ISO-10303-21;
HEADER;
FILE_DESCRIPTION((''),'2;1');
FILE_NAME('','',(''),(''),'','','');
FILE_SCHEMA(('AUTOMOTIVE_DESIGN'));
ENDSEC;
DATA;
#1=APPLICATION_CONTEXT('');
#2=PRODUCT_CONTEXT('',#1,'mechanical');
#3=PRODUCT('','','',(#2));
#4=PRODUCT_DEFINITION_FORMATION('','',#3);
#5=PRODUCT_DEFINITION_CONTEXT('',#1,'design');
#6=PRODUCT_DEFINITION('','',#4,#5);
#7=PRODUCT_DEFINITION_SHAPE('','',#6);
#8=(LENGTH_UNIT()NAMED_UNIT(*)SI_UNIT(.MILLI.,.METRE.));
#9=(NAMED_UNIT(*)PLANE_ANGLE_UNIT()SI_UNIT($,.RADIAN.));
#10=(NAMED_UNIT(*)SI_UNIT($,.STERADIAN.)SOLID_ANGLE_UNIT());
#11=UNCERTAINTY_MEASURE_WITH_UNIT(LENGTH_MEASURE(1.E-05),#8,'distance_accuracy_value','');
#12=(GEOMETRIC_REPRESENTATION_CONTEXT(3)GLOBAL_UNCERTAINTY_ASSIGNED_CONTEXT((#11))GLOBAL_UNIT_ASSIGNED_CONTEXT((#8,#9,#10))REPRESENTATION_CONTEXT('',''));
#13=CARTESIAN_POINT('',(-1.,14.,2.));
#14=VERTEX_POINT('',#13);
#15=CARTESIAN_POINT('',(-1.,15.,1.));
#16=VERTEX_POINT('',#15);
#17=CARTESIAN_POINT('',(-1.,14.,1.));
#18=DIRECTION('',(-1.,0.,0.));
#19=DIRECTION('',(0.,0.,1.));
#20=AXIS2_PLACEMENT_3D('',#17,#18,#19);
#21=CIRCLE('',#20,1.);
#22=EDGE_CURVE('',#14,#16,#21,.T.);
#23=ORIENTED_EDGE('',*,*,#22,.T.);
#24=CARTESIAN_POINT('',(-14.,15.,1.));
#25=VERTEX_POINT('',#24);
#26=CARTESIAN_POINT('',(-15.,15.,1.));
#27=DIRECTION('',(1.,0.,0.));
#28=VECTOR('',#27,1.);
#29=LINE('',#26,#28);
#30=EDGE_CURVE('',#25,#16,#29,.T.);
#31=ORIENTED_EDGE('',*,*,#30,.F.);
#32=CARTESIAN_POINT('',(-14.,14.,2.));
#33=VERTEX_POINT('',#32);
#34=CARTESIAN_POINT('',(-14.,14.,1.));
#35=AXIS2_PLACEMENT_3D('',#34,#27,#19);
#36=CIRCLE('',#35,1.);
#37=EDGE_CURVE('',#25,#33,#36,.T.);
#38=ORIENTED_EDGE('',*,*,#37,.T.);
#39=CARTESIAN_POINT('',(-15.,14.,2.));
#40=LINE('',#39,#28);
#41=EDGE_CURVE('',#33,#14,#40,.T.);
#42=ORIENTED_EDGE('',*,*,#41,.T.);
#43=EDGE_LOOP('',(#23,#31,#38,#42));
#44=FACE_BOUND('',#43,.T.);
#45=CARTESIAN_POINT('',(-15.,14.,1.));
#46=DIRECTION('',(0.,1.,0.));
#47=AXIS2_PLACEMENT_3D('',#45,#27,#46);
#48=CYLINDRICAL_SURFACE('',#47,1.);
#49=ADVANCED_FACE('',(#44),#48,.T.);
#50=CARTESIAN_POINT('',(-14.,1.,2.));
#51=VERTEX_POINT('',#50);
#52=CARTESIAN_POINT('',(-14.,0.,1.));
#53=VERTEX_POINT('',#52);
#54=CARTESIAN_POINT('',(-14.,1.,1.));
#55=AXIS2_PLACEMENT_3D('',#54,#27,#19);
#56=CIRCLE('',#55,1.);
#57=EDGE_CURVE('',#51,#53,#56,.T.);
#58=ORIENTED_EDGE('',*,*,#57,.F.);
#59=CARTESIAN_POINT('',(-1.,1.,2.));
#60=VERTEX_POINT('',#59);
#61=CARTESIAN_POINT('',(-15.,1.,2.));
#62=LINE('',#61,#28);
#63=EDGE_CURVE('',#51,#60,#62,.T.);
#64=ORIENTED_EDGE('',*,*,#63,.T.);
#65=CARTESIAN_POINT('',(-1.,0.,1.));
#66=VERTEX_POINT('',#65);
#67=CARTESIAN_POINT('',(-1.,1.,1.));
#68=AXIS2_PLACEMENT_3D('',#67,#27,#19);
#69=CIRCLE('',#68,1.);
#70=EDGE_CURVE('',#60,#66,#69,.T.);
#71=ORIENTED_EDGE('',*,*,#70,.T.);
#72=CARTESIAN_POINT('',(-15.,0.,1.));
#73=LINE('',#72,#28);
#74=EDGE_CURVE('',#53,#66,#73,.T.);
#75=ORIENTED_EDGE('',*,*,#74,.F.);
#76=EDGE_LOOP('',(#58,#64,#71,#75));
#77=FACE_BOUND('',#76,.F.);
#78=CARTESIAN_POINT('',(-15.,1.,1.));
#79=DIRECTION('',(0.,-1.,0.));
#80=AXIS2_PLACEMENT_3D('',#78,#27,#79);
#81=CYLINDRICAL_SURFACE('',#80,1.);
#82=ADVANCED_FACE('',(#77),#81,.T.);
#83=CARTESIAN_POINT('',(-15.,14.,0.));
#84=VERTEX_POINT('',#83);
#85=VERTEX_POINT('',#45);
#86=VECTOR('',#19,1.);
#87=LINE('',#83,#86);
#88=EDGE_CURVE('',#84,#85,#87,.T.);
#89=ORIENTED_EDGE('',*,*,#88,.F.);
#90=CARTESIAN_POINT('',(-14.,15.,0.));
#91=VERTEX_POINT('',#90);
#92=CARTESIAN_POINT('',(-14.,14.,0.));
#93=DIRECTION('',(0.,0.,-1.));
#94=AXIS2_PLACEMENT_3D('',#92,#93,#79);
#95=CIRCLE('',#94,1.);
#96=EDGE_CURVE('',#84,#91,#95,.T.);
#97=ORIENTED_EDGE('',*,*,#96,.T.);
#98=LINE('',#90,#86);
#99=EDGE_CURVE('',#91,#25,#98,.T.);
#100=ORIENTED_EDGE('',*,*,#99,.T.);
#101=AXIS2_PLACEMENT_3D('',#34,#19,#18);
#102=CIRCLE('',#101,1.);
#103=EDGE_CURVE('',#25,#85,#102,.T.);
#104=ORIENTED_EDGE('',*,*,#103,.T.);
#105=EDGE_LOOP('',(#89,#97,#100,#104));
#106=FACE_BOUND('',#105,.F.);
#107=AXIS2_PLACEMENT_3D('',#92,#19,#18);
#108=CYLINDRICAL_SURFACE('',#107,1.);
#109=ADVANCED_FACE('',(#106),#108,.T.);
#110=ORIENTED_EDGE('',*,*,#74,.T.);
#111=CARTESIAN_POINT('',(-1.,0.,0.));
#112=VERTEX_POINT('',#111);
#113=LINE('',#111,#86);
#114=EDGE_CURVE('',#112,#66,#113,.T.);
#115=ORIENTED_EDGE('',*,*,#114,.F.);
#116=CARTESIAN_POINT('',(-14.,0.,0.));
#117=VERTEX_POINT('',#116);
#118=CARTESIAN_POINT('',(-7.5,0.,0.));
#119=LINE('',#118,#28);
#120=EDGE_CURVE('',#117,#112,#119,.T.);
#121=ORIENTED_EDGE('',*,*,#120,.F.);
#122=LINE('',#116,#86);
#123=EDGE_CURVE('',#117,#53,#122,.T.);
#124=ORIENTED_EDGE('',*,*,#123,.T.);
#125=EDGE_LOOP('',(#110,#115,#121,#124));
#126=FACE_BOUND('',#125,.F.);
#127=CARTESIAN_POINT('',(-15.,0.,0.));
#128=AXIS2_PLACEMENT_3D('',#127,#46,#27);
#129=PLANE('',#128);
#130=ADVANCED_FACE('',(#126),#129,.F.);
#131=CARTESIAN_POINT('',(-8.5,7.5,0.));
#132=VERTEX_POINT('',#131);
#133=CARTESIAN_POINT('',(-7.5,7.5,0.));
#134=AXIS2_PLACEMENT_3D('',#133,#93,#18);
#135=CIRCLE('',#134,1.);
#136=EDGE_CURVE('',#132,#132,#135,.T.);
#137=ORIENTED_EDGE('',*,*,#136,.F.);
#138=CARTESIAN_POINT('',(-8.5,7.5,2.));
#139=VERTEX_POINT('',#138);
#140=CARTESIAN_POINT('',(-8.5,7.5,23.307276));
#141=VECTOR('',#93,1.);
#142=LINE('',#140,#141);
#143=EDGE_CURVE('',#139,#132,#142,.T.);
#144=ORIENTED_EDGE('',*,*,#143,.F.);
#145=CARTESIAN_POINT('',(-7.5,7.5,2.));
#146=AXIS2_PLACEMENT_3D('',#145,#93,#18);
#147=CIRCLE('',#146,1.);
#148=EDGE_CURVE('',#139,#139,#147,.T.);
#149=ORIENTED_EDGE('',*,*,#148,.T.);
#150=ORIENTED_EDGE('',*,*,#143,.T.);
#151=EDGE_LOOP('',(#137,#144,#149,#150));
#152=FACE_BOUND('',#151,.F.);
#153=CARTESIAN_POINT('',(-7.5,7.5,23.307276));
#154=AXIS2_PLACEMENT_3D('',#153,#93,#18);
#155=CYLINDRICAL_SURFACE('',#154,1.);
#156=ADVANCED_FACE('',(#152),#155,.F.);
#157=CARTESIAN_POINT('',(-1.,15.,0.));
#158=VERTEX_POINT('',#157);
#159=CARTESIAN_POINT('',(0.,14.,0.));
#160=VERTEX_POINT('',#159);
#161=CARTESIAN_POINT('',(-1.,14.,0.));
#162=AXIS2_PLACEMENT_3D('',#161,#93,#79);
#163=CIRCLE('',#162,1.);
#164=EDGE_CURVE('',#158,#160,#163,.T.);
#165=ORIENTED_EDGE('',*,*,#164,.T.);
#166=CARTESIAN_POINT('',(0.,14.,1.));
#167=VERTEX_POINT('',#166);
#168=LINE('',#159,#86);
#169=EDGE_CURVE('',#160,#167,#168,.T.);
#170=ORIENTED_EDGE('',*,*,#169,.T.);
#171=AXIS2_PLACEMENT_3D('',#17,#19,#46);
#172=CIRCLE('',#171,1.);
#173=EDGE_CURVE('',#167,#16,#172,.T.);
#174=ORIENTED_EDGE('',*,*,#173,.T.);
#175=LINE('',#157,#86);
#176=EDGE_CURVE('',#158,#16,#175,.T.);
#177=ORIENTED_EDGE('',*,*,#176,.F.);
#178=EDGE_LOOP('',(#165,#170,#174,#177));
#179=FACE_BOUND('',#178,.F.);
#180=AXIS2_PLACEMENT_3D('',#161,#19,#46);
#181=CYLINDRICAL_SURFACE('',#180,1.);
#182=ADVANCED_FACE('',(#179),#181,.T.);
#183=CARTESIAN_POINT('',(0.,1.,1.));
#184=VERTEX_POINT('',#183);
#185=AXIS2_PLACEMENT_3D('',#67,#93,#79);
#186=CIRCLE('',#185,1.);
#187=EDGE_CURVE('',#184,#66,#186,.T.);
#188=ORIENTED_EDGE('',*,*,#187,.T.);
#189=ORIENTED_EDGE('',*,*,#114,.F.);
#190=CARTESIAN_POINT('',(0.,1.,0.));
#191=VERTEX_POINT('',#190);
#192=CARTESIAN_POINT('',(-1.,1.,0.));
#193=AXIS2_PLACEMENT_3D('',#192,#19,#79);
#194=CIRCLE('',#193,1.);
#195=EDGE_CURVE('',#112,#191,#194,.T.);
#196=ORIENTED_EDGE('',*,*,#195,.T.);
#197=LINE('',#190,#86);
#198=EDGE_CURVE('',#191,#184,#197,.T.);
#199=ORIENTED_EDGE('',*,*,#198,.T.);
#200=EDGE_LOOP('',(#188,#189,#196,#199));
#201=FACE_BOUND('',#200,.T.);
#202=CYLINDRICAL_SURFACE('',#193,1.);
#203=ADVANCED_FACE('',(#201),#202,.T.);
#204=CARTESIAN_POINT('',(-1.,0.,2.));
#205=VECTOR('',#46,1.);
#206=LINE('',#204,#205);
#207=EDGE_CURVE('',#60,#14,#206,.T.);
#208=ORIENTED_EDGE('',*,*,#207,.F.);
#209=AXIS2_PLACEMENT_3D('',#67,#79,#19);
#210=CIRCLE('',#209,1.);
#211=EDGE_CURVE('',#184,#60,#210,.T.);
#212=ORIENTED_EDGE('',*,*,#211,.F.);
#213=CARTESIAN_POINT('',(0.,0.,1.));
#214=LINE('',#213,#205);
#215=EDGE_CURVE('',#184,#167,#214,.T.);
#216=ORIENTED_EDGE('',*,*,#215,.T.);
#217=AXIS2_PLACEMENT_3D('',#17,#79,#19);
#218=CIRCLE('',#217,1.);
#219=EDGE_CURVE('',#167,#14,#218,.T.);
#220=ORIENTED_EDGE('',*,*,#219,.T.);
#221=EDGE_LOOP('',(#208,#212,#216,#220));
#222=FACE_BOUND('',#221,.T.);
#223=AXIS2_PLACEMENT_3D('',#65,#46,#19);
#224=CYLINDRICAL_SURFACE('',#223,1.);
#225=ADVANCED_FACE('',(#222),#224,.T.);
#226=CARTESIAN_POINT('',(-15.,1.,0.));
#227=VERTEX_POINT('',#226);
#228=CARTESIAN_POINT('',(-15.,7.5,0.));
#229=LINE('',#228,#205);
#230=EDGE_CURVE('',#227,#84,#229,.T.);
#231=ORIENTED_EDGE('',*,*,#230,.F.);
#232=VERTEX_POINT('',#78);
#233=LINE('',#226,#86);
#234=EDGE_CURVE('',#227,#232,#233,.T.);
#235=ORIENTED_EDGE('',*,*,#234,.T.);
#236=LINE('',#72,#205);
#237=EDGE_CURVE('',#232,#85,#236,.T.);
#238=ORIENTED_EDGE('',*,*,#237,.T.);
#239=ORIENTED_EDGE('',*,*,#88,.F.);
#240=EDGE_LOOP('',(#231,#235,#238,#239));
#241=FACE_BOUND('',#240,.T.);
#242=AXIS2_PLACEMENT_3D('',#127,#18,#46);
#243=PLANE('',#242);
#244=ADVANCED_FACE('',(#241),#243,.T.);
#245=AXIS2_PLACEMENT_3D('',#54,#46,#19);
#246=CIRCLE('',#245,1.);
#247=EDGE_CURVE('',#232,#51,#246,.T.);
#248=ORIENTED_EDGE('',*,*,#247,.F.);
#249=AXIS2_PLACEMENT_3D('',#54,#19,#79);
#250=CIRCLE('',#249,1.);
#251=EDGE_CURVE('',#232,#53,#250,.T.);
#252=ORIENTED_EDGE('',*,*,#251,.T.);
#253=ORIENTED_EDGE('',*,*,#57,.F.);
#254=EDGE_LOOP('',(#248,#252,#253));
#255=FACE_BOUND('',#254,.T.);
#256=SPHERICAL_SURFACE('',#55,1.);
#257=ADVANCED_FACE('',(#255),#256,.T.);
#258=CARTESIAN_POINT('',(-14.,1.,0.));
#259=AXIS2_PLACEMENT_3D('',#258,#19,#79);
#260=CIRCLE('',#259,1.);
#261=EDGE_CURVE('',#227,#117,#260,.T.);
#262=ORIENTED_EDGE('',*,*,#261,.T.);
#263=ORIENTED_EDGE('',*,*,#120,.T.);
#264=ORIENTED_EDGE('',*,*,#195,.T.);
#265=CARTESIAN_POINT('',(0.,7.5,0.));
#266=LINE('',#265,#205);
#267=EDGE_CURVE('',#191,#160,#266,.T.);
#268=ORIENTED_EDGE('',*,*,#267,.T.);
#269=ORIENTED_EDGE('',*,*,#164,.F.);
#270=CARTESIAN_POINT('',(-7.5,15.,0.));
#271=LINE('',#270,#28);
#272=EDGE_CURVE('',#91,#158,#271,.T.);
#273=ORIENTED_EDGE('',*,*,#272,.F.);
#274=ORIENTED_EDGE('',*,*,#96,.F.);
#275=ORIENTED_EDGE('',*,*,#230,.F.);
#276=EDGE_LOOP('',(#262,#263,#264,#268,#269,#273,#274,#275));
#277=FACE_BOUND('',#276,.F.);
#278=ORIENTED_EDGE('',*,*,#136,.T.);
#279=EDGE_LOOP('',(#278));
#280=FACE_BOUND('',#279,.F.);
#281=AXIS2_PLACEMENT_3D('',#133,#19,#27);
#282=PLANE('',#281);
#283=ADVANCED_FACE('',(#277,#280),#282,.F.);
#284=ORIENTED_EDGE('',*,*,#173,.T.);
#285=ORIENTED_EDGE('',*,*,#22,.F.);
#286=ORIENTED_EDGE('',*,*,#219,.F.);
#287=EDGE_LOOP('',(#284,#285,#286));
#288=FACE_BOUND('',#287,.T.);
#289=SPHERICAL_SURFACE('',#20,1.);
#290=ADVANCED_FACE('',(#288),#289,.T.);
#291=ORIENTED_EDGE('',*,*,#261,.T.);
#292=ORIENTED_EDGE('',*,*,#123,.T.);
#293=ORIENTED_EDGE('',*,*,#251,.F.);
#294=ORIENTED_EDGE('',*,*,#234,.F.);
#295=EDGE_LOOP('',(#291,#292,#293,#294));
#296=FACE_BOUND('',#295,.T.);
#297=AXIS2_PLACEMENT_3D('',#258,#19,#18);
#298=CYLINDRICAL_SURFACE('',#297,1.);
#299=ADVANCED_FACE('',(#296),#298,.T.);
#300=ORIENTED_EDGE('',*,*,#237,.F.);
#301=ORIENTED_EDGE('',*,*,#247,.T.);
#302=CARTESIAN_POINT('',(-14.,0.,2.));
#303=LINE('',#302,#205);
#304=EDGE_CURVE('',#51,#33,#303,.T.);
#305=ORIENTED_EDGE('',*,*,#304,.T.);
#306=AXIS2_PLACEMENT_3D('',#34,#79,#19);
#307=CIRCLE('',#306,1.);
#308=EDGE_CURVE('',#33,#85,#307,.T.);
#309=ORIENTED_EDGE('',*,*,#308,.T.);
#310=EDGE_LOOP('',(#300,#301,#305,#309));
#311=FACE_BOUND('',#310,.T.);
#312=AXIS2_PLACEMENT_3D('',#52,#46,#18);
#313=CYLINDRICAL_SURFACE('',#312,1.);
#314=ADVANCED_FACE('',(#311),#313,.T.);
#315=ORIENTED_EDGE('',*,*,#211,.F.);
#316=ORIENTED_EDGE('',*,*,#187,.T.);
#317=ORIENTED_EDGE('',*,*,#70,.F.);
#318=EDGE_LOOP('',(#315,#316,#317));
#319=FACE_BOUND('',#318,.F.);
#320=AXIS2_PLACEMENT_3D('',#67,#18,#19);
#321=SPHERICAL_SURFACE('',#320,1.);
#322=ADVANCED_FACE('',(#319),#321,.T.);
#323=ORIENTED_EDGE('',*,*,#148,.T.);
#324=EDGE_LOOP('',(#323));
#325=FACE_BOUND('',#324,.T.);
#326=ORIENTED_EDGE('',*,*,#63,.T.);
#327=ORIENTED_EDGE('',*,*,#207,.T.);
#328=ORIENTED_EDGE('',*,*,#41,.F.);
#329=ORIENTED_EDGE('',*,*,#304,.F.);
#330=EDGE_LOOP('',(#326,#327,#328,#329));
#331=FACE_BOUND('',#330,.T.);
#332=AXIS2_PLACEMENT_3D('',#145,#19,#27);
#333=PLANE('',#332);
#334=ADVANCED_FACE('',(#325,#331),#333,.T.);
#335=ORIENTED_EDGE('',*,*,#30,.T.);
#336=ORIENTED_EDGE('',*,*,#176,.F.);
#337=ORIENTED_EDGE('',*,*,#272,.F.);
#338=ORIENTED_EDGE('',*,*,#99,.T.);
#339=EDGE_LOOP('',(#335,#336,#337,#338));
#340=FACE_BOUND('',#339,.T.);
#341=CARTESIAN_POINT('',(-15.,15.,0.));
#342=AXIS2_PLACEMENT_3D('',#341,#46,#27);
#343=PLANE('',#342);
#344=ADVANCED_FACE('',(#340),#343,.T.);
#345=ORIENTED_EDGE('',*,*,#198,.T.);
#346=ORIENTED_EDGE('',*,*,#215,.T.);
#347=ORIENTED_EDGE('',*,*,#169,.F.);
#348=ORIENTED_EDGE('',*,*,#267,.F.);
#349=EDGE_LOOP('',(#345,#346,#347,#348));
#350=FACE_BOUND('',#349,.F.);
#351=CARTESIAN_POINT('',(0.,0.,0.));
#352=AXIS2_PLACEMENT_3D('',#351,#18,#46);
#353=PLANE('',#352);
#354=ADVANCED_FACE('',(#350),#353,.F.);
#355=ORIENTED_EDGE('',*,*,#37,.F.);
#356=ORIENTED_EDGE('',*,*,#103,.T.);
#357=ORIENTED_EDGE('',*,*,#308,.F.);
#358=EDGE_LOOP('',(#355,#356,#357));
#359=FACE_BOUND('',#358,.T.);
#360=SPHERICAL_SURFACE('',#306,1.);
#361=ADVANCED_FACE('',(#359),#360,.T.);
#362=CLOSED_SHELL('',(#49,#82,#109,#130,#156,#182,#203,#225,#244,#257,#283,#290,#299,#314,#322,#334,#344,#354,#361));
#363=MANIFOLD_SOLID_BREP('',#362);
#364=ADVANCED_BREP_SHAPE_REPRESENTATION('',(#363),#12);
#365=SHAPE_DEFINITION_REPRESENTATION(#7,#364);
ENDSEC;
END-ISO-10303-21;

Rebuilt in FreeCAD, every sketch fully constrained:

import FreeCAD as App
import Part
import Sketcher
Q = App.Units.Quantity


def edges_at(feature, points):
    """Names of the edges that pass closest to the given points."""
    edges = feature.Shape.Edges
    near = lambda p: min(range(len(edges)), key=lambda i: edges[i].distToShape(Part.Vertex(*p))[0])
    return sorted({f"Edge{near(p) + 1}" for p in points})

doc = App.newDocument("Part")
body = doc.addObject("PartDesign::Body", "Body")

# Sketch on XY plane
sketch1 = body.newObject("Sketcher::SketchObject", "Sketch")
sketch1.AttachmentSupport = (doc.getObject("XY_Plane"), [""])
sketch1.MapMode = "FlatFace"
sketch1.addGeometry([
    Part.LineSegment(App.Vector(-15, 15, 0), App.Vector(-15, 0, 0)),
    Part.LineSegment(App.Vector(-15, 0, 0), App.Vector(0, 0, 0)),
    Part.LineSegment(App.Vector(0, 0, 0), App.Vector(0, 15, 0)),
    Part.LineSegment(App.Vector(0, 15, 0), App.Vector(-15, 15, 0)),
], False)
sketch1.addConstraint([
    Sketcher.Constraint("Coincident", 0, 2, 1, 1),
    Sketcher.Constraint("Coincident", 1, 2, 2, 1),
    Sketcher.Constraint("Coincident", 2, 2, 3, 1),
    Sketcher.Constraint("Coincident", 3, 2, 0, 1),
    Sketcher.Constraint("Vertical", 0),
    Sketcher.Constraint("Horizontal", 1),
    Sketcher.Constraint("Vertical", 2),
    Sketcher.Constraint("Horizontal", 3),
    Sketcher.Constraint("Coincident", 1, 2, -1, 1),
    Sketcher.Constraint("Equal", 3, 0),
    Sketcher.Constraint("DistanceX", 1, 1, 1, 2, Q("15 mm")),
])
pad1 = body.newObject("PartDesign::Pad", "Pad")
pad1.Profile = sketch1
pad1.Length = 2

# Sketch on XY plane
sketch2 = body.newObject("Sketcher::SketchObject", "Sketch001")
sketch2.AttachmentSupport = (doc.getObject("XY_Plane"), [""])
sketch2.MapMode = "FlatFace"
sketch2.AttachmentOffset = App.Placement(App.Vector(0, 0, 2), App.Rotation())
sketch2.addGeometry(Part.Circle(App.Vector(-7.5, 7.5, 0), App.Vector(0, 0, 1), 1), False)
sketch2.addConstraint([
    Sketcher.Constraint("Diameter", 0, Q("2 mm")),
    Sketcher.Constraint("DistanceX", 0, 3, -1, 1, Q("7.5 mm")),
    Sketcher.Constraint("DistanceY", -1, 1, 0, 3, Q("7.5 mm")),
])
doc.recompute()
hole = body.newObject("PartDesign::Hole", "Hole")
hole.Profile = sketch2
hole.ThreadType = "None"
hole.Diameter = 2
hole.DepthType = "ThroughAll"
doc.recompute()

fillet = body.newObject("PartDesign::Fillet", "Fillet")
fillet.Base = (hole, edges_at(hole, [
    (-7.5, 0, 2),
    (-15, 7.5, 2),
    (-7.5, 15, 2),
    (0, 7.5, 2),
    (0, 0, 1),
    (-15, 0, 1),
    (0, 15, 1),
    (-15, 15, 1),
]))
fillet.Radius = 1

doc.recompute()
